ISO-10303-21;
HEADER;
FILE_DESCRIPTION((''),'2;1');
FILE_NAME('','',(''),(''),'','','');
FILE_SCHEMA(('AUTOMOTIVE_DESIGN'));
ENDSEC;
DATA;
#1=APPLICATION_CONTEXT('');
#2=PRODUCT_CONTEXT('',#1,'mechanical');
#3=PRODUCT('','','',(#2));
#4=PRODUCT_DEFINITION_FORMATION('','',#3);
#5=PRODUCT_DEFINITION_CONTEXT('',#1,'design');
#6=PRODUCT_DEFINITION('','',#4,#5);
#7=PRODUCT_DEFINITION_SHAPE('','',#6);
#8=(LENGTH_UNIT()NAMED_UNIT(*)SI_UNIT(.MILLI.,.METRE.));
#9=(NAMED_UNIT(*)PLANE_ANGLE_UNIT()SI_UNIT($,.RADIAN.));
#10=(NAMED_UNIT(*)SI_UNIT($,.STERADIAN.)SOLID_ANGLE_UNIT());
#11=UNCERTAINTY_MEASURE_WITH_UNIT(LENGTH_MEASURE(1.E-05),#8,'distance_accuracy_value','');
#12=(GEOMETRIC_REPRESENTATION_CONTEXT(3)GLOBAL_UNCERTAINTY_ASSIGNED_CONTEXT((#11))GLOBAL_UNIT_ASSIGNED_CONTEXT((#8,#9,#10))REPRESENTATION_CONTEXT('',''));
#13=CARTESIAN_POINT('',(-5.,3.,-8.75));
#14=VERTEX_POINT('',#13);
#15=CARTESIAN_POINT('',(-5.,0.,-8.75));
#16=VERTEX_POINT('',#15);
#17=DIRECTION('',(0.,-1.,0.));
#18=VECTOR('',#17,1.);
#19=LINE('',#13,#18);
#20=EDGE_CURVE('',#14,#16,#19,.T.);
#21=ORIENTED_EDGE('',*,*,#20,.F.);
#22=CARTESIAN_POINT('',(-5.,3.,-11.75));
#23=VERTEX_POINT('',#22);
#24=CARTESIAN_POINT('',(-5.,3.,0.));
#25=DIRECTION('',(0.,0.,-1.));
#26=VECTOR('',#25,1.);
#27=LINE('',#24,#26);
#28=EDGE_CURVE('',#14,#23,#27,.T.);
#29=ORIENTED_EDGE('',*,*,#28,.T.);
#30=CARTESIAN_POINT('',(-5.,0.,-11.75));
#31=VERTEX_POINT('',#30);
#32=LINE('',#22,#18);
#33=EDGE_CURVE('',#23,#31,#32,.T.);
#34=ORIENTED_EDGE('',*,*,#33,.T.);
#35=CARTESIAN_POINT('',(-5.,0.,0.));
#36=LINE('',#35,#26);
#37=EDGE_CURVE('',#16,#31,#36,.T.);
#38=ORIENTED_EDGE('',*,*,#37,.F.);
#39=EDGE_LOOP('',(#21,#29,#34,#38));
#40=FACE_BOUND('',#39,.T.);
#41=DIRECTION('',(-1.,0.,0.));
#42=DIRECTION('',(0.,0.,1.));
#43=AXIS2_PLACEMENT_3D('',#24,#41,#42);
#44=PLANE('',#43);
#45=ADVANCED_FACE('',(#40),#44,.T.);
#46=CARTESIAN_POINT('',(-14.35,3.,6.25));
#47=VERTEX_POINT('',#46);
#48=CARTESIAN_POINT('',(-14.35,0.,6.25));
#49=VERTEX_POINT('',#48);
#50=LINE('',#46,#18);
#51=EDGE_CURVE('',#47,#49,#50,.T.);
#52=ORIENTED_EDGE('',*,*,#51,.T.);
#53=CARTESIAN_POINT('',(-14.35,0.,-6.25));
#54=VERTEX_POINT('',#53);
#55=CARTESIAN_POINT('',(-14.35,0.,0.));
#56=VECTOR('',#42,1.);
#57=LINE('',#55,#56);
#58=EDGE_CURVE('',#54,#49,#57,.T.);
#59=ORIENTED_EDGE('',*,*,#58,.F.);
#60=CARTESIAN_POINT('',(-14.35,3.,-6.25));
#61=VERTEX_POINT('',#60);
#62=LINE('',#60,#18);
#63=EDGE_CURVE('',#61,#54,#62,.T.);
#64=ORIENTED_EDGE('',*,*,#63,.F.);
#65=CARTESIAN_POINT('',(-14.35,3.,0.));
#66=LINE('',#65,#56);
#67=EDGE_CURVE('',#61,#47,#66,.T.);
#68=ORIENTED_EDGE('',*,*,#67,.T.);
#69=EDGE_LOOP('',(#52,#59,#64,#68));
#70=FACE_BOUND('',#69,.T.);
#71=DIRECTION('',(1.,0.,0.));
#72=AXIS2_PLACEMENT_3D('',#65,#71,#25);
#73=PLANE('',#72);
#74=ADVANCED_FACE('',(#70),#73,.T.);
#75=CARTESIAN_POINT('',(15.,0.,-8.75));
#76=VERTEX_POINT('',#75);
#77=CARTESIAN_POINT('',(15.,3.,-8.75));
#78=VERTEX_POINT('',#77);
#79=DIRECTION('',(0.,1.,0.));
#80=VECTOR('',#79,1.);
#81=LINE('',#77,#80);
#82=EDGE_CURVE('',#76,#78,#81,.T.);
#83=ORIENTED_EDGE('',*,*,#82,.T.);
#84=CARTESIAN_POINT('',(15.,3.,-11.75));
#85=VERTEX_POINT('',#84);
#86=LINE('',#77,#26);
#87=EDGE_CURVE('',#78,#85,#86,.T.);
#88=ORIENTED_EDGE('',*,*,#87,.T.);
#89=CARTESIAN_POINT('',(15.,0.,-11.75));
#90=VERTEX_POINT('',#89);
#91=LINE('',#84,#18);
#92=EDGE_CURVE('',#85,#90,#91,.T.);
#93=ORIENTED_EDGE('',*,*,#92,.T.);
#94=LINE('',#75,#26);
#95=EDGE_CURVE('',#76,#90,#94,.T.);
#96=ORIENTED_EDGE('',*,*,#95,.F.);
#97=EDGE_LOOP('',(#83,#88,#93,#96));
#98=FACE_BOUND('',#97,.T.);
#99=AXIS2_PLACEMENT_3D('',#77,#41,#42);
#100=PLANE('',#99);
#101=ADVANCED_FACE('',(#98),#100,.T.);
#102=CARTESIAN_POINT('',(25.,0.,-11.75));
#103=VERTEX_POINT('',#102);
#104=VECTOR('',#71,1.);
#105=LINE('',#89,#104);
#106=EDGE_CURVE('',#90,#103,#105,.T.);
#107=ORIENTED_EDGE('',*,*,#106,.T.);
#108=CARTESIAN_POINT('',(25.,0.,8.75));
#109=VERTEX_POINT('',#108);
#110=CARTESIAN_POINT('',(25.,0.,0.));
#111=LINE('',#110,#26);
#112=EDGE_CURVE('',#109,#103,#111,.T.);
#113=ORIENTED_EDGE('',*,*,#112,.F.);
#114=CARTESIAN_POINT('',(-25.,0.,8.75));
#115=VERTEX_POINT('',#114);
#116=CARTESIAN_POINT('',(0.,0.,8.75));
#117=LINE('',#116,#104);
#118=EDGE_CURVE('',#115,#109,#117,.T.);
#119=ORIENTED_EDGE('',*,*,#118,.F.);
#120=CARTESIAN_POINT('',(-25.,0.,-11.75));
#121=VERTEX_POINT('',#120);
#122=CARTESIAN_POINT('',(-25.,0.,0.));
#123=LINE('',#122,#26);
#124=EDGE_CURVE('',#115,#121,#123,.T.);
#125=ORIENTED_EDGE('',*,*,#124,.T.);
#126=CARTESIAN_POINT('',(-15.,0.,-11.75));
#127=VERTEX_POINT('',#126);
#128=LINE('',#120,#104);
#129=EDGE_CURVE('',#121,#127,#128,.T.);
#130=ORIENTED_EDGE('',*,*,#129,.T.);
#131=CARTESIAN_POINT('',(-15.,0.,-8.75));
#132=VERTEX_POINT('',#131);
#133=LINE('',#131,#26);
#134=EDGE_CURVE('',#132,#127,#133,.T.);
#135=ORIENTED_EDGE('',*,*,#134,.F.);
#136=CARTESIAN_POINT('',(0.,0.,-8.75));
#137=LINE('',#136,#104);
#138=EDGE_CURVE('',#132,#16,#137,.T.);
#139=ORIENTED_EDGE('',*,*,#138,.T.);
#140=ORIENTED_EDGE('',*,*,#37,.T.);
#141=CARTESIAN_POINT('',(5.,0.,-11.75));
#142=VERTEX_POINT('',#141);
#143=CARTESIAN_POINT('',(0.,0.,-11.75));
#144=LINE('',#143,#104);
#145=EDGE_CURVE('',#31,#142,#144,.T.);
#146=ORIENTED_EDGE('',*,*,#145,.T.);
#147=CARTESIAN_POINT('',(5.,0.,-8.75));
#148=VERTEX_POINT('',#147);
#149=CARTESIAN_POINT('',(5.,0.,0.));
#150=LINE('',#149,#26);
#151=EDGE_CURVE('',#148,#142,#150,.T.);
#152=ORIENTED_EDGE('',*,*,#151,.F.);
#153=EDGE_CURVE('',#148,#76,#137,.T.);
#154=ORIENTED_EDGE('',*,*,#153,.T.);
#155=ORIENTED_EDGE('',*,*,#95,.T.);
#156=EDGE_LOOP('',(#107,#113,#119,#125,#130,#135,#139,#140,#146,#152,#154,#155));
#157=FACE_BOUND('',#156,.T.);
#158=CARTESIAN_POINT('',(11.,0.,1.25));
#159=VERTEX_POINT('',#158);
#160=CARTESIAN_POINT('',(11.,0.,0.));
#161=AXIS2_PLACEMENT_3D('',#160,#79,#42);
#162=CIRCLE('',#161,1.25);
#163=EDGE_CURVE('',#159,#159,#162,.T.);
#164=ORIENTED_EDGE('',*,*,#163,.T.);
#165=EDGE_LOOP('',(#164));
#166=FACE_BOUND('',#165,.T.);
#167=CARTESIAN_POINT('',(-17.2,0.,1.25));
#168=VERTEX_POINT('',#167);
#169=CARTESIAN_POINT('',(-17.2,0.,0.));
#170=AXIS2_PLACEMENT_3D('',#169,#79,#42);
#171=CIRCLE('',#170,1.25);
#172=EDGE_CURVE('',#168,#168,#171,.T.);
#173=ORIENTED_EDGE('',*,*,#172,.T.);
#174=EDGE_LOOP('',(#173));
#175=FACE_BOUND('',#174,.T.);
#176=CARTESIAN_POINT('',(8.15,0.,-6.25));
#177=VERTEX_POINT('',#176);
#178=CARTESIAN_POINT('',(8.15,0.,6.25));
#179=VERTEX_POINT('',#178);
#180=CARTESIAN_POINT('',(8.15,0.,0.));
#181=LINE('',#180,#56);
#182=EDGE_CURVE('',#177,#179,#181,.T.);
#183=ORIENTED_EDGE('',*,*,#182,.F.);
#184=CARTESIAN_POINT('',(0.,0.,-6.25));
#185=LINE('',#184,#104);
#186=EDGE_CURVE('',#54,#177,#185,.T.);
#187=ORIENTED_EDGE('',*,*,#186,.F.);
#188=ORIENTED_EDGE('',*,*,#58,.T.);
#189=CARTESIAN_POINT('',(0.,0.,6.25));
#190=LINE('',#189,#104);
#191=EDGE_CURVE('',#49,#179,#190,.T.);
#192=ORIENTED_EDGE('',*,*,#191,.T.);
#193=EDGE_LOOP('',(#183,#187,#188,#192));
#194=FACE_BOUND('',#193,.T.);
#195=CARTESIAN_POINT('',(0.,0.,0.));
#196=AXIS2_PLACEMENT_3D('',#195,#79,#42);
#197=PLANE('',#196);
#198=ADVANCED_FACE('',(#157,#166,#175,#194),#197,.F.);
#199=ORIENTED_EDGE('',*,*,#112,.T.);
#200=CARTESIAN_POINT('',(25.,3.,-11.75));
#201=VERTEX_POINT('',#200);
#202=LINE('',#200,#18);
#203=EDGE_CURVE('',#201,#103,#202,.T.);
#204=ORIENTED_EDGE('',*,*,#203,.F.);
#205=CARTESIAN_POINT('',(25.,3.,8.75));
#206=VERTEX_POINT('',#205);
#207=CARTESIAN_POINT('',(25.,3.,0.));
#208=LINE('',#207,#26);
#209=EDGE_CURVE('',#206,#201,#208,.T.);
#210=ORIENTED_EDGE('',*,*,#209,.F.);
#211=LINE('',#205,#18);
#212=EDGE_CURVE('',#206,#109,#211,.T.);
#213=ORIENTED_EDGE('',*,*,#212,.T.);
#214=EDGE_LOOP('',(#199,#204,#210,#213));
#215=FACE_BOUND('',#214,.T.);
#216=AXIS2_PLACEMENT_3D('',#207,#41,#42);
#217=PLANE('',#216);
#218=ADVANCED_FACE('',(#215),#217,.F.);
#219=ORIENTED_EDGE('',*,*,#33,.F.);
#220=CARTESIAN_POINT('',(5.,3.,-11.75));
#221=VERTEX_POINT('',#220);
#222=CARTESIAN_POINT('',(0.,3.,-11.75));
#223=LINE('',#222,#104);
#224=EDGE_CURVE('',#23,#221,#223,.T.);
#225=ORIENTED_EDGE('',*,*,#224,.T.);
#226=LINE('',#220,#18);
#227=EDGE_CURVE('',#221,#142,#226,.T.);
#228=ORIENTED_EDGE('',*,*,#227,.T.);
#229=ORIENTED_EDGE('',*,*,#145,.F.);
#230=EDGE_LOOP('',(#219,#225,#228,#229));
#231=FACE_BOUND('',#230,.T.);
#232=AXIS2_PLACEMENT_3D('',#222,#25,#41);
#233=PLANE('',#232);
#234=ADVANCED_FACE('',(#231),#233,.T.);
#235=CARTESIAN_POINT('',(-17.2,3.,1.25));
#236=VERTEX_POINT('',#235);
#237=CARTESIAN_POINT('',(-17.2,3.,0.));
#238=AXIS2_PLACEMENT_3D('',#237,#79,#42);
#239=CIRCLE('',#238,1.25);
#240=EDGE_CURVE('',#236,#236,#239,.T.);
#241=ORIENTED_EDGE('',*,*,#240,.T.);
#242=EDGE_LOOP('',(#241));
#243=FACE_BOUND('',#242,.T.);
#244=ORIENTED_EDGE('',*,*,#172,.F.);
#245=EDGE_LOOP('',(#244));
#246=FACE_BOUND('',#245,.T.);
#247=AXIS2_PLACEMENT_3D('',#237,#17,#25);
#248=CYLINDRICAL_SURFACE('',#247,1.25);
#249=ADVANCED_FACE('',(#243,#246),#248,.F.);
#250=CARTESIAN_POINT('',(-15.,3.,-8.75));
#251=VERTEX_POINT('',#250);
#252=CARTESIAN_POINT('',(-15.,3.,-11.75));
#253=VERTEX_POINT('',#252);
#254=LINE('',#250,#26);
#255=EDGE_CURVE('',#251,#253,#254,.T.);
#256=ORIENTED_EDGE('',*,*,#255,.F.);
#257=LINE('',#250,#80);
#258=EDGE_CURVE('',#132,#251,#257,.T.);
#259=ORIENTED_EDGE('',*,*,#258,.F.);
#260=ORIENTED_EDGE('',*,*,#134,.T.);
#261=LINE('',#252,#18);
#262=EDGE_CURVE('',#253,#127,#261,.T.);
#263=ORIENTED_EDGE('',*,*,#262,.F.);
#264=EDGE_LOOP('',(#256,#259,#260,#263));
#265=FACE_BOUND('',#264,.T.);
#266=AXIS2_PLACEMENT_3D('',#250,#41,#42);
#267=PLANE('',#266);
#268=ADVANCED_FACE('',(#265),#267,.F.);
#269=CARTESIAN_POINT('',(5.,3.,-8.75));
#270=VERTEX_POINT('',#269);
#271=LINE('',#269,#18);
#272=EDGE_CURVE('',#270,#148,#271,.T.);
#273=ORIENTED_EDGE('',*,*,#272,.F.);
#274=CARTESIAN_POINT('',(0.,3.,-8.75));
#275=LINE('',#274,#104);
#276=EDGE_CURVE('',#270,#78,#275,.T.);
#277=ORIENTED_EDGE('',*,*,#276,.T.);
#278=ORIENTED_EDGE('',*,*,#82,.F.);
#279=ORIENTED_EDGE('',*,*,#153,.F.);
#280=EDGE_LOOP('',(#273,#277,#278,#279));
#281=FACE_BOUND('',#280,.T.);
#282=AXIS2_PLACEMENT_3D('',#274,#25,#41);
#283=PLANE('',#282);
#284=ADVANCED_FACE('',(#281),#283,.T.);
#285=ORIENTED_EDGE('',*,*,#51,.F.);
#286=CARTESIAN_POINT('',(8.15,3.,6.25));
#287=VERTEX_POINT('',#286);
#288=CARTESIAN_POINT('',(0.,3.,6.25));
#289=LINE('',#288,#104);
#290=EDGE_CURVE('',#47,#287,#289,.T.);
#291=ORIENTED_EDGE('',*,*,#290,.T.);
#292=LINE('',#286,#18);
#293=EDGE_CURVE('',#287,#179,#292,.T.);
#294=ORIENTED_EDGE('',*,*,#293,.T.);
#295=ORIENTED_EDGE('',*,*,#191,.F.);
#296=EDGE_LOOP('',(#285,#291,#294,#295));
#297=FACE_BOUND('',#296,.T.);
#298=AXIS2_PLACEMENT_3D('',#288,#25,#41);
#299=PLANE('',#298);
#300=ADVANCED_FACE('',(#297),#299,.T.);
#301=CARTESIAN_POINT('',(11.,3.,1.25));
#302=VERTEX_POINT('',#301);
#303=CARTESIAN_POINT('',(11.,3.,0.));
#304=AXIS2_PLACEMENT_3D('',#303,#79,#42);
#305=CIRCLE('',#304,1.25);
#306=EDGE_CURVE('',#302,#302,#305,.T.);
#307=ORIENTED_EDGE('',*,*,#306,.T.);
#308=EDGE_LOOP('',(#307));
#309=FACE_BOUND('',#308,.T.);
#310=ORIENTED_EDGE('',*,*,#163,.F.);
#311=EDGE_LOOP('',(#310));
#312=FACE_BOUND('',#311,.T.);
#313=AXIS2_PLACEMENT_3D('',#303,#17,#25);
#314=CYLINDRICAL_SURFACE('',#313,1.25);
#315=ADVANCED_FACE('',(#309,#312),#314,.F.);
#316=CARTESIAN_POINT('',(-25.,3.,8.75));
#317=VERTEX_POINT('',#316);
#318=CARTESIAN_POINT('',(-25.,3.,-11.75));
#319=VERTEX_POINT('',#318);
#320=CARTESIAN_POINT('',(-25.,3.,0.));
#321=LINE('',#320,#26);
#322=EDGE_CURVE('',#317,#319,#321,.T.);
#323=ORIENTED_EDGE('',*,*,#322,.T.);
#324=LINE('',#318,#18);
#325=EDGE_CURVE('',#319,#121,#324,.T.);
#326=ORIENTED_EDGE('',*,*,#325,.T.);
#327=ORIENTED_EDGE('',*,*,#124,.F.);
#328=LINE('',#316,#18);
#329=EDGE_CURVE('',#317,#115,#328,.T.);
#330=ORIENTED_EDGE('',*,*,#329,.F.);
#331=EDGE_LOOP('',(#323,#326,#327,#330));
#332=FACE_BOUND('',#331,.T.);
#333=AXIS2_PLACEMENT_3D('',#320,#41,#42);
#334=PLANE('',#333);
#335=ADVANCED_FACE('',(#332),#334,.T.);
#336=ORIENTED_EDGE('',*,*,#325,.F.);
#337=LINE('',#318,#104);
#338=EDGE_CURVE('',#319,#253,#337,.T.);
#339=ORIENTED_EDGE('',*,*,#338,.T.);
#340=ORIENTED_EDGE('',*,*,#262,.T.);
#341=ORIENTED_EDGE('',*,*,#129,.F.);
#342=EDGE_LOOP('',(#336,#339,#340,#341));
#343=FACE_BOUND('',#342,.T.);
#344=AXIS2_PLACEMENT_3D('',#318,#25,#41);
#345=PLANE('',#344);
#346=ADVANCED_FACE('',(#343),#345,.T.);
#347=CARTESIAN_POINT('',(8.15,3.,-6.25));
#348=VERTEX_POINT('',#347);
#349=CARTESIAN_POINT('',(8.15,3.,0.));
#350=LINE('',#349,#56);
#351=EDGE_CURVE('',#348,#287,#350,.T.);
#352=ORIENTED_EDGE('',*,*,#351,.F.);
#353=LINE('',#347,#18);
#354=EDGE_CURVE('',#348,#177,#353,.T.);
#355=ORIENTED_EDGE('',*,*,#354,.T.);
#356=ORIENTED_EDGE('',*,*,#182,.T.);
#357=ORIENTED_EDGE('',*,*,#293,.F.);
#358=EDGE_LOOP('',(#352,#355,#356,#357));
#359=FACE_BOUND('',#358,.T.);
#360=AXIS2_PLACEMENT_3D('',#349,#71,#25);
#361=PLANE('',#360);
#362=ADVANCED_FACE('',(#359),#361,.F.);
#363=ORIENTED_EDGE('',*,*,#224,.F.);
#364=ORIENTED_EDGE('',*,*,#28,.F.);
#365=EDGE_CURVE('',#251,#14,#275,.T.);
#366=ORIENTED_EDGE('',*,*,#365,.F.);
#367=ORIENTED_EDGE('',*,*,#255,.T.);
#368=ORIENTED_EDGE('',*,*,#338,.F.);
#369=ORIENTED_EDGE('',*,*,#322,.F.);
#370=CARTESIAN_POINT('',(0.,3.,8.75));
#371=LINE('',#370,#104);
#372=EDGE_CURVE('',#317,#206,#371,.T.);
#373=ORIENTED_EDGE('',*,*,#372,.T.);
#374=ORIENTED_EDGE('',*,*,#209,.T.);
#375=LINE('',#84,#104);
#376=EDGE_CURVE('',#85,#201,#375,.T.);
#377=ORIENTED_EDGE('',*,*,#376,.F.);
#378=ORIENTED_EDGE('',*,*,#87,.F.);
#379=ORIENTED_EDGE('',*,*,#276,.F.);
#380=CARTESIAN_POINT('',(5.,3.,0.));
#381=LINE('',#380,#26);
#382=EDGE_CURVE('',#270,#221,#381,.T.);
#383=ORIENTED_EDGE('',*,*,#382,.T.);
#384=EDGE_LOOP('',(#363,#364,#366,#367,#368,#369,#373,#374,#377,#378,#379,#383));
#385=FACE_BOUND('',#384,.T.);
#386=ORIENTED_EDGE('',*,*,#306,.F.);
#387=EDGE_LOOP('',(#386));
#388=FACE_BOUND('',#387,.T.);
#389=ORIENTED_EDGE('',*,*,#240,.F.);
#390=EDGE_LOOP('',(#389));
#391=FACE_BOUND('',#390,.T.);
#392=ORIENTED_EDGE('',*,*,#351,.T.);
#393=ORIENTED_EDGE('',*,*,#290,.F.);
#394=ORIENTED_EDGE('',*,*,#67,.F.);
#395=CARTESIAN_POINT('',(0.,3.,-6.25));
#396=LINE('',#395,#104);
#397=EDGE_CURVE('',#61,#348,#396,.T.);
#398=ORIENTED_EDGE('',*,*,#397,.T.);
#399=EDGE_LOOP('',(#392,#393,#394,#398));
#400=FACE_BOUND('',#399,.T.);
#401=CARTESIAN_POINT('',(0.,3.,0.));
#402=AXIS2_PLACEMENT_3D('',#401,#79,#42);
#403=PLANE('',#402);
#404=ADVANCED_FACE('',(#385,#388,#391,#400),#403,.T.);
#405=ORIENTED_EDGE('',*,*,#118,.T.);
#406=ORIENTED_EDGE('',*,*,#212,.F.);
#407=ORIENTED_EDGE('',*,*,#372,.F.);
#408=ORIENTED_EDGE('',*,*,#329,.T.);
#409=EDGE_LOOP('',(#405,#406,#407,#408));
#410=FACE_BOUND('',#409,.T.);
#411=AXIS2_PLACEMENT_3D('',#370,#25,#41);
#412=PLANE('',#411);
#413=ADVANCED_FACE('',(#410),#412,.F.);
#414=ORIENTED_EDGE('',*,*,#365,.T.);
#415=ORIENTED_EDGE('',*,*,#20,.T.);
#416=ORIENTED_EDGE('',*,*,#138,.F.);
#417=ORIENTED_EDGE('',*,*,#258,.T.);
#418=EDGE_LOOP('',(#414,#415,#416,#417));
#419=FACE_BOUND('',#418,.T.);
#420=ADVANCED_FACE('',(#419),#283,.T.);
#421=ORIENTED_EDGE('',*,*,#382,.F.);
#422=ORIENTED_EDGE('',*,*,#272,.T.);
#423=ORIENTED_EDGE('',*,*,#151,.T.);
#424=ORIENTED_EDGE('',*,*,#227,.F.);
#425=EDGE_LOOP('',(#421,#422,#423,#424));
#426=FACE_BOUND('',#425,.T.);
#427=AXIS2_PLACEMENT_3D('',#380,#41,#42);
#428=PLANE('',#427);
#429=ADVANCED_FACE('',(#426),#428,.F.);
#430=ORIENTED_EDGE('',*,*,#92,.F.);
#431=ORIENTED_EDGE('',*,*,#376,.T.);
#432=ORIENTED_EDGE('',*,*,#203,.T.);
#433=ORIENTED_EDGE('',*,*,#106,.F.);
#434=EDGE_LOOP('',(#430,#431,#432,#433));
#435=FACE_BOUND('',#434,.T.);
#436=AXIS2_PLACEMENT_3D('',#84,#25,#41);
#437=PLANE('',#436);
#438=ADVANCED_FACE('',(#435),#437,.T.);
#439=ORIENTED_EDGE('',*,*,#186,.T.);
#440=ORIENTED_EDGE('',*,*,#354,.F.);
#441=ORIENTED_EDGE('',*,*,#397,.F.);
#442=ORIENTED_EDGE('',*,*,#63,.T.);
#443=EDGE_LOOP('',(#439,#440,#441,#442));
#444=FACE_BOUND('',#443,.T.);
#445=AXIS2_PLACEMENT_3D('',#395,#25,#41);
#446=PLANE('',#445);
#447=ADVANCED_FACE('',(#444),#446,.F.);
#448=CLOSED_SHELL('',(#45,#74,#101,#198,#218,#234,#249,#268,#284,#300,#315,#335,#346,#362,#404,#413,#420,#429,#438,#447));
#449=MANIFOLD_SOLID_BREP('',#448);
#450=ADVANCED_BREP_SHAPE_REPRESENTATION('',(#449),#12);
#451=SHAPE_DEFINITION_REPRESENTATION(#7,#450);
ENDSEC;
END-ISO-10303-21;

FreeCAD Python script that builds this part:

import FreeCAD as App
import Part
import Sketcher

V = App.Vector

doc = App.newDocument("Part")
body = doc.addObject("PartDesign::Body", "Body")

# Sketch on XZ plane
sketch1 = body.newObject("Sketcher::SketchObject", "Sketch")
sketch1.AttachmentSupport = (doc.getObject("XZ_Plane"), [""])
sketch1.MapMode = "FlatFace"
sketch1.addGeometry([
    Part.LineSegment(V(-25, 8.75, 0), V(25, 8.75, 0)),  # 0
    Part.LineSegment(V(25, 8.75, 0), V(25, -11.75, 0)),  # 1
    Part.LineSegment(V(25, -11.75, 0), V(15, -11.75, 0)),  # 2
    Part.LineSegment(V(15, -11.75, 0), V(15, -8.75, 0)),  # 3
    Part.LineSegment(V(15, -8.75, 0), V(5, -8.75, 0)),  # 4
    Part.LineSegment(V(5, -8.75, 0), V(5, -11.75, 0)),  # 5
    Part.LineSegment(V(5, -11.75, 0), V(-5, -11.75, 0)),  # 6
    Part.LineSegment(V(-5, -11.75, 0), V(-5, -8.75, 0)),  # 7
    Part.LineSegment(V(-5, -8.75, 0), V(-15, -8.75, 0)),  # 8
    Part.LineSegment(V(-15, -8.75, 0), V(-15, -11.75, 0)),  # 9
    Part.LineSegment(V(-15, -11.75, 0), V(-25, -11.75, 0)),  # 10
    Part.LineSegment(V(-25, -11.75, 0), V(-25, 8.75, 0)),  # 11
    Part.Circle(V(-17.2, 0, 0), V(0, 0, 1), 1.25),  # 12
    Part.LineSegment(V(8.15, 6.25, 0), V(-14.35, 6.25, 0)),  # 13
    Part.LineSegment(V(-14.35, 6.25, 0), V(-14.35, -6.25, 0)),  # 14
    Part.LineSegment(V(-14.35, -6.25, 0), V(8.15, -6.25, 0)),  # 15
    Part.LineSegment(V(8.15, -6.25, 0), V(8.15, 6.25, 0)),  # 16
    Part.Circle(V(11, 0, 0), V(0, 0, 1), 1.25),  # 17
], False)
sketch1.addConstraint([
    Sketcher.Constraint("Coincident", 0, 2, 1, 1),
    Sketcher.Constraint("Coincident", 1, 2, 2, 1),
    Sketcher.Constraint("Coincident", 2, 2, 3, 1),
    Sketcher.Constraint("Coincident", 3, 2, 4, 1),
    Sketcher.Constraint("Coincident", 4, 2, 5, 1),
    Sketcher.Constraint("Coincident", 5, 2, 6, 1),
    Sketcher.Constraint("Coincident", 6, 2, 7, 1),
    Sketcher.Constraint("Coincident", 7, 2, 8, 1),
    Sketcher.Constraint("Coincident", 8, 2, 9, 1),
    Sketcher.Constraint("Coincident", 9, 2, 10, 1),
    Sketcher.Constraint("Coincident", 10, 2, 11, 1),
    Sketcher.Constraint("Coincident", 11, 2, 0, 1),
    Sketcher.Constraint("Coincident", 13, 2, 14, 1),
    Sketcher.Constraint("Coincident", 14, 2, 15, 1),
    Sketcher.Constraint("Coincident", 15, 2, 16, 1),
    Sketcher.Constraint("Coincident", 16, 2, 13, 1),
    Sketcher.Constraint("Horizontal", 0),
    Sketcher.Constraint("Vertical", 1),
    Sketcher.Constraint("Horizontal", 2),
    Sketcher.Constraint("Vertical", 3),
    Sketcher.Constraint("Horizontal", 4),
    Sketcher.Constraint("Vertical", 5),
    Sketcher.Constraint("Horizontal", 6),
    Sketcher.Constraint("Vertical", 7),
    Sketcher.Constraint("Horizontal", 8),
    Sketcher.Constraint("Vertical", 9),
    Sketcher.Constraint("Horizontal", 10),
    Sketcher.Constraint("Vertical", 11),
    Sketcher.Constraint("Horizontal", 13),
    Sketcher.Constraint("Vertical", 14),
    Sketcher.Constraint("Horizontal", 15),
    Sketcher.Constraint("Vertical", 16),
    Sketcher.Constraint("Equal", 12, 17),
    Sketcher.Constraint("Symmetric", 4, 2, 7, 2, -2),
    Sketcher.Constraint("Symmetric", 2, 2, 9, 2, -2),
    Sketcher.Constraint("PointOnObject", 12, 3, -1),
    Sketcher.Constraint("PointOnObject", 17, 3, -1),
    Sketcher.Constraint("Horizontal", 2, 2, 5, 2),
    Sketcher.Constraint("Equal", 2, 4),
    Sketcher.Constraint("Equal", 4, 6),
    Sketcher.Constraint("Equal", 8, 10),
    Sketcher.Constraint("Diameter", 12, 2.5),
    Sketcher.Constraint("DistanceX", 0, 1, 0, 2, 50.0),
    Sketcher.Constraint("DistanceY", 3, 1, 3, 2, 3.0),
    Sketcher.Constraint("DistanceX", 13, 2, 13, 1, 22.5),
    Sketcher.Constraint("DistanceY", 1, 2, 1, 1, 20.5),
    Sketcher.Constraint("DistanceY", 14, 2, 14, 1, 12.5),
    Sketcher.Constraint("DistanceX", -1, 1, 17, 3, 11.0),
    Sketcher.Constraint("DistanceY", 8, 2, 13, 2, 15.0),
    Sketcher.Constraint("DistanceX", 12, 3, -1, 1, 17.2),
    Sketcher.Constraint("DistanceY", -1, 1, 0, 2, 8.75),
    Sketcher.Constraint("DistanceX", 13, 2, -1, 1, 14.35),
])
pad1 = body.newObject("PartDesign::Pad", "Pad")
pad1.Profile = sketch1
pad1.Length = 3
pad1.Reversed = True

doc.recompute()
